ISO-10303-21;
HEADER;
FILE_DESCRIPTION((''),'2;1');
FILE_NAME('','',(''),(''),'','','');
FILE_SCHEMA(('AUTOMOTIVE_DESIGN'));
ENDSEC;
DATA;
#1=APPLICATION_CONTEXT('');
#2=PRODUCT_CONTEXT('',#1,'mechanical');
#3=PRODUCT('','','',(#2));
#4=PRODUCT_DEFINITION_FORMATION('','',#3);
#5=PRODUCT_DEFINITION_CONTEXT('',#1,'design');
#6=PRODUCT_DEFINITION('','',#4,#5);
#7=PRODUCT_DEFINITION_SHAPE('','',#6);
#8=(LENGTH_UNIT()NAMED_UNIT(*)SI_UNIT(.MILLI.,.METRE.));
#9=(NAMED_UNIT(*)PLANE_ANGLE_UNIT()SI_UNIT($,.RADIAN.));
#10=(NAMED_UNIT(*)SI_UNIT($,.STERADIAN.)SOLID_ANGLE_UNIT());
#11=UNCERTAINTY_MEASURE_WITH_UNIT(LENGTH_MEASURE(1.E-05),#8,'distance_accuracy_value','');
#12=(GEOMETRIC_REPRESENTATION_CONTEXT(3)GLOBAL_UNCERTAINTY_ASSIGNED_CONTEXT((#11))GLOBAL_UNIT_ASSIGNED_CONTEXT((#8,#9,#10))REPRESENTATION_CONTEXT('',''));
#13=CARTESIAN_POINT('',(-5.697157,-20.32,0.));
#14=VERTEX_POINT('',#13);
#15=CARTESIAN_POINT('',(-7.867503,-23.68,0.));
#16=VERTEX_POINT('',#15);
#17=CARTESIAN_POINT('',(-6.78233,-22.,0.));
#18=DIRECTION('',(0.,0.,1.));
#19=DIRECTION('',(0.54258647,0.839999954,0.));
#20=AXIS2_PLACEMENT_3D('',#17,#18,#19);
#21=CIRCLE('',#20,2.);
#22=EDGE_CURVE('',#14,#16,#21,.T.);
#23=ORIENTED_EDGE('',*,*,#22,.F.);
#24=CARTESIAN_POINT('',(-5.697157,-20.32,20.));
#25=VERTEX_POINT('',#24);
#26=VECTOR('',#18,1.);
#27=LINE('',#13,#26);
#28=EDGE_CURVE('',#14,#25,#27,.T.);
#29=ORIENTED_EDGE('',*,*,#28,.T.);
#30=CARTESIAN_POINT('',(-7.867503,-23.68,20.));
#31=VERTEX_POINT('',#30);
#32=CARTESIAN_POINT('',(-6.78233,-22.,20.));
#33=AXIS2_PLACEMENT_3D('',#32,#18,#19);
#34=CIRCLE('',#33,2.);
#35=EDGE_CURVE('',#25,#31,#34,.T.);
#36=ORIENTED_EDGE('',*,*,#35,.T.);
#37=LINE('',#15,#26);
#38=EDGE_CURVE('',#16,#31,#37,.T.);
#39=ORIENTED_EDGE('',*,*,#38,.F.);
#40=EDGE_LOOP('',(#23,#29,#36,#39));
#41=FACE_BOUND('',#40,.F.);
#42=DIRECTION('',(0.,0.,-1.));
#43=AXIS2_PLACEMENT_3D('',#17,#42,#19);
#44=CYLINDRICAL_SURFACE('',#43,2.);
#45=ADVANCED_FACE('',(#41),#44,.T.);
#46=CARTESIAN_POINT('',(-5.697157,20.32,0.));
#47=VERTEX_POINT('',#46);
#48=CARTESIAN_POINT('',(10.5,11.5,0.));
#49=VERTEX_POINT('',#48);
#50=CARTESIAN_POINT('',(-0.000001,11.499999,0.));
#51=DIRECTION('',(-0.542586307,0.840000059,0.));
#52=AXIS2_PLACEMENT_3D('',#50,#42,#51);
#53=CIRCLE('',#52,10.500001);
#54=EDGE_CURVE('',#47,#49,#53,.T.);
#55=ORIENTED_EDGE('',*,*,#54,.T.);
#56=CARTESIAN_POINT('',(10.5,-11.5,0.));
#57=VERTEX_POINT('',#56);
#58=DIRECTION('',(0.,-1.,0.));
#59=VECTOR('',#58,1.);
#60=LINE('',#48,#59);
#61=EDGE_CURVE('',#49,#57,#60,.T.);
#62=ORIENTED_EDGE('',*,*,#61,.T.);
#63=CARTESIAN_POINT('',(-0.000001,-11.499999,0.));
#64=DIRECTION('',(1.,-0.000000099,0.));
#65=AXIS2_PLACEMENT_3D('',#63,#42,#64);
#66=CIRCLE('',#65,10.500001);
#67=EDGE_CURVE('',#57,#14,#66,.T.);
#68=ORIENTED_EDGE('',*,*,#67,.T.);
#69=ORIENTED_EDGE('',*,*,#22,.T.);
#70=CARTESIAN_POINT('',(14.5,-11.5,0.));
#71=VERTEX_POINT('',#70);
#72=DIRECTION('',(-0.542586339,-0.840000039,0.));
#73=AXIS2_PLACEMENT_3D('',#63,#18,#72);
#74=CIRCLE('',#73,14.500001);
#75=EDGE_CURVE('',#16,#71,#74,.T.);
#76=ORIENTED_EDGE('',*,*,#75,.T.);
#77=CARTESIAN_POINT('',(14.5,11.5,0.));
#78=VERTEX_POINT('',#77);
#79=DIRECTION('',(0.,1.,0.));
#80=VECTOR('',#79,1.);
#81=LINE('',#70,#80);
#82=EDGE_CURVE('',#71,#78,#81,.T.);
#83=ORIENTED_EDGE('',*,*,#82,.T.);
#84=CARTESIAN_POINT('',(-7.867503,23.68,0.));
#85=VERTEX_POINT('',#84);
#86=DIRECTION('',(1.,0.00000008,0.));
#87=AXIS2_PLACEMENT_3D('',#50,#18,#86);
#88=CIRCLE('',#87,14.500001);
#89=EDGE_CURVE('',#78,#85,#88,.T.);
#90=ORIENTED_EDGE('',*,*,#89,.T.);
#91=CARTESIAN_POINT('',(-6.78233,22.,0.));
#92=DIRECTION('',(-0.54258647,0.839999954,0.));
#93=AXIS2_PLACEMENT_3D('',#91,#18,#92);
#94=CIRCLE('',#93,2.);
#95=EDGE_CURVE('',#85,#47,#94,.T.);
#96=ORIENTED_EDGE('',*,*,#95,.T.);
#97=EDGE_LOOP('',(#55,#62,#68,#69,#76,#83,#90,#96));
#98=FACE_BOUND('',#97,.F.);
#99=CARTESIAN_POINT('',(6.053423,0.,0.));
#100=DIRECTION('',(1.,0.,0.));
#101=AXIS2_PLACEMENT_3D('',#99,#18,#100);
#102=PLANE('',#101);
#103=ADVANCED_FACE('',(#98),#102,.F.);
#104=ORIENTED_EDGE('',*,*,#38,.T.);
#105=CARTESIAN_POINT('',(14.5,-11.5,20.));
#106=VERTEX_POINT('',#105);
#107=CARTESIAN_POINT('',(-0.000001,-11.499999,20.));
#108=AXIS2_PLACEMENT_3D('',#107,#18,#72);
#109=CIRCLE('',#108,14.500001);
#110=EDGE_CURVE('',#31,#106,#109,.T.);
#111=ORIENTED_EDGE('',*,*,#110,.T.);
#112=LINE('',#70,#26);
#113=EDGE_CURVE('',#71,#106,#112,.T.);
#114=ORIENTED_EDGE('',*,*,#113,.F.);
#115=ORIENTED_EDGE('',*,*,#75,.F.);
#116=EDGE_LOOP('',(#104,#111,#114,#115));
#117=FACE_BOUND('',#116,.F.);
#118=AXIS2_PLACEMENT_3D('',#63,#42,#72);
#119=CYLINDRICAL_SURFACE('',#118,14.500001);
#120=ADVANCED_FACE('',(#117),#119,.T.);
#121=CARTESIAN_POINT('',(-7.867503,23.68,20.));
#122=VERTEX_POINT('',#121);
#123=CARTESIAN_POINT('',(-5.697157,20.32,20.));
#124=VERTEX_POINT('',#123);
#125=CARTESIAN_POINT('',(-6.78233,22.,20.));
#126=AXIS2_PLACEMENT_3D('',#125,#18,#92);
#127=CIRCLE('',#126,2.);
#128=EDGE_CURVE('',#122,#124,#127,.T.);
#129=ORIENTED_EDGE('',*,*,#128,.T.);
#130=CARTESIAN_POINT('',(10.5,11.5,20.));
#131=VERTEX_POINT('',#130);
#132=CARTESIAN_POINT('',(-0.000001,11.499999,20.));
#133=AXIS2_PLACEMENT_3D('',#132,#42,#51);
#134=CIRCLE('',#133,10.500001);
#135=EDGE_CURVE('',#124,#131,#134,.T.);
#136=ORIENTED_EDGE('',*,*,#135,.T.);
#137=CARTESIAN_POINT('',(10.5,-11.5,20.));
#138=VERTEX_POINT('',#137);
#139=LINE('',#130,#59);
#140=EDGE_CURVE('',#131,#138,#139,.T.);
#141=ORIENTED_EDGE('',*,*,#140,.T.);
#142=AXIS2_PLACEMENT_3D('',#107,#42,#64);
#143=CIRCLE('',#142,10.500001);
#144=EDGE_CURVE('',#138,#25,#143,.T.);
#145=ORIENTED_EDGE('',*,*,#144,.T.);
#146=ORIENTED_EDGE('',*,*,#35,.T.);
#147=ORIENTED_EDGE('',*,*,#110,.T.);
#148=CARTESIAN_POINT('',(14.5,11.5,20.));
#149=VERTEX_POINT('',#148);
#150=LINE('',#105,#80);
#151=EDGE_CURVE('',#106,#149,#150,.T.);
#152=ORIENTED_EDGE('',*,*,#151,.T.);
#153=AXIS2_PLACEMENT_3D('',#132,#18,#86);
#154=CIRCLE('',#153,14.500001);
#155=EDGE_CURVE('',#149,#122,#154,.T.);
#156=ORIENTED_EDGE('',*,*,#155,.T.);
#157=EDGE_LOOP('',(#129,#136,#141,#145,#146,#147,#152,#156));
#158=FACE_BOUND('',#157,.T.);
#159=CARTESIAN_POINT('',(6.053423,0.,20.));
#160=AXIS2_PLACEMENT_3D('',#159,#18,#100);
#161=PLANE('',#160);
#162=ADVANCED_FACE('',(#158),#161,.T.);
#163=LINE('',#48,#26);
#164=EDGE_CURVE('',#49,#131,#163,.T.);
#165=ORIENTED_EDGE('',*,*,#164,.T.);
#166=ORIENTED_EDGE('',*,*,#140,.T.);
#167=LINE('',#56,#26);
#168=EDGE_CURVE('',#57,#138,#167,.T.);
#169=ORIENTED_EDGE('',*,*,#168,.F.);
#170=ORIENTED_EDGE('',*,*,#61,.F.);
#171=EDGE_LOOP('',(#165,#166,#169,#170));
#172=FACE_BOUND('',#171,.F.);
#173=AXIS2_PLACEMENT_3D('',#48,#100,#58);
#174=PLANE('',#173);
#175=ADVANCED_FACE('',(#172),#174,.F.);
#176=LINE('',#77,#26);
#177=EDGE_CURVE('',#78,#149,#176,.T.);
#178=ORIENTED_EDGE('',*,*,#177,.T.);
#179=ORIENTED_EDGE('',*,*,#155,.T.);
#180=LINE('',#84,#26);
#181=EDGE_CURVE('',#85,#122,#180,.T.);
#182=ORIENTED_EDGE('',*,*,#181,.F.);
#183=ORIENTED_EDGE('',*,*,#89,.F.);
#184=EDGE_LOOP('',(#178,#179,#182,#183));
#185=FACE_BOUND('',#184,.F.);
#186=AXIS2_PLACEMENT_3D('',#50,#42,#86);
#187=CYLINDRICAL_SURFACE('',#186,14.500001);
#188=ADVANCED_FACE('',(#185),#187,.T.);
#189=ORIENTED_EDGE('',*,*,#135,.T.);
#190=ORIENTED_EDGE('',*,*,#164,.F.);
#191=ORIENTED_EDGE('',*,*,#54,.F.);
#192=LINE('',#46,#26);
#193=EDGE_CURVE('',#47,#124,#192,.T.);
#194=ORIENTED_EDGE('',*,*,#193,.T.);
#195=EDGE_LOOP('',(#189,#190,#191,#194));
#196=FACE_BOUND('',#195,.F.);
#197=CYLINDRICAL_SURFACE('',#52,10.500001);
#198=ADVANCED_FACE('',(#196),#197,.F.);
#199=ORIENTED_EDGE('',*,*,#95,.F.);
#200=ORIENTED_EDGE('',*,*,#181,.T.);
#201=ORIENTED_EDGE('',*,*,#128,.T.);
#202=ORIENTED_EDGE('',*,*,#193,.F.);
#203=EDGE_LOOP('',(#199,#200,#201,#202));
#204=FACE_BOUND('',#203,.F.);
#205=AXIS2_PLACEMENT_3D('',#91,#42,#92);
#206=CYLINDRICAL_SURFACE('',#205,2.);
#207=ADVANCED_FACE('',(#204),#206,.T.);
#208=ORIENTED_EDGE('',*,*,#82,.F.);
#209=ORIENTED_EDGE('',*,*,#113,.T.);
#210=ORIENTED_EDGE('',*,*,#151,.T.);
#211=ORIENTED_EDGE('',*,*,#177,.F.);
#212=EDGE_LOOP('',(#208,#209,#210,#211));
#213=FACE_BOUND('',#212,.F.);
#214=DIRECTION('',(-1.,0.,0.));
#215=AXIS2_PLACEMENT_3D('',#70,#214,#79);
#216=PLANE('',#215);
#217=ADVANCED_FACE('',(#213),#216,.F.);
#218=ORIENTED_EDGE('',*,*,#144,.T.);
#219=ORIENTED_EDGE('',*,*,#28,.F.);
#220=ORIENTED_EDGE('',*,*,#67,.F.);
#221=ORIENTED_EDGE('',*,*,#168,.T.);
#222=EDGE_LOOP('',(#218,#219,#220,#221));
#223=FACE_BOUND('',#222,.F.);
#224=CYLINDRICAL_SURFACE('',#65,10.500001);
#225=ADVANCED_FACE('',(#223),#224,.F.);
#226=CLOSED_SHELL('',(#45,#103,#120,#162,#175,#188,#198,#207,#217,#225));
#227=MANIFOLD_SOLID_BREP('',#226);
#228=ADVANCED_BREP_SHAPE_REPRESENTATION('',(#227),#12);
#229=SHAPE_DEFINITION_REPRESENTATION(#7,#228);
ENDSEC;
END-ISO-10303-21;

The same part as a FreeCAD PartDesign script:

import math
import FreeCAD as App
import Part
import Sketcher
from FreeCAD import Vector
Q = App.Units.Quantity

doc = App.newDocument("Part")
body = doc.addObject("PartDesign::Body", "Body")

# Sketch on XY plane
sketch1 = doc.addObject("Sketcher::SketchObject", "Sketch")
body.addObject(sketch1)
sketch1.AttachmentSupport = (doc.XY_Plane, [""])
sketch1.MapMode = "FlatFace"
sketch1.addGeometry(Part.ArcOfCircle(Part.Circle(Vector(-0.000001, 11.499999, 0), Vector(0, 0, 1), 10.500001), math.radians(0.000006), math.radians(122.859874)), False)
sketch1.addGeometry(Part.LineSegment(Vector(10.5, 11.5, 0), Vector(10.5, -11.5, 0)), False)
sketch1.addGeometry(Part.ArcOfCircle(Part.Circle(Vector(-0.000001, -11.499999, 0), Vector(0, 0, 1), 10.500001), math.radians(-122.859874), math.radians(-0.000006)), False)
sketch1.addGeometry(Part.ArcOfCircle(Part.Circle(Vector(-6.78233, -22, 0), Vector(0, 0, 1), 2), math.radians(57.140115), math.radians(237.140115)), False)
sketch1.addGeometry(Part.ArcOfCircle(Part.Circle(Vector(-0.000001, -11.499999, 0), Vector(0, 0, 1), 14.500001), math.radians(-122.859876), math.radians(-0.000005)), False)
sketch1.addGeometry(Part.LineSegment(Vector(14.5, -11.5, 0), Vector(14.5, 11.5, 0)), False)
sketch1.addGeometry(Part.ArcOfCircle(Part.Circle(Vector(-0.000001, 11.499999, 0), Vector(0, 0, 1), 14.500001), math.radians(0.000005), math.radians(122.859876)), False)
sketch1.addGeometry(Part.ArcOfCircle(Part.Circle(Vector(-6.78233, 22, 0), Vector(0, 0, 1), 2), math.radians(122.859885), math.radians(302.859885)), False)
sketch1.addConstraint(Sketcher.Constraint("Tangent", 0, 1, 1, 1))
sketch1.addConstraint(Sketcher.Constraint("Tangent", 1, 2, 2, 2))
sketch1.addConstraint(Sketcher.Constraint("Tangent", 2, 1, 3, 1))
sketch1.addConstraint(Sketcher.Constraint("Tangent", 3, 2, 4, 1))
sketch1.addConstraint(Sketcher.Constraint("Tangent", 4, 2, 5, 1))
sketch1.addConstraint(Sketcher.Constraint("Tangent", 5, 2, 6, 1))
sketch1.addConstraint(Sketcher.Constraint("Tangent", 6, 2, 7, 1))
sketch1.addConstraint(Sketcher.Constraint("Tangent", 7, 2, 0, 2))
sketch1.addConstraint(Sketcher.Constraint("Vertical", 1))
sketch1.addConstraint(Sketcher.Constraint("Vertical", 5))
sketch1.addConstraint(Sketcher.Constraint("Coincident", 4, 3, 2, 3))
sketch1.addConstraint(Sketcher.Constraint("Coincident", 6, 3, 0, 3))
sketch1.addConstraint(Sketcher.Constraint("Equal", 0, 2))
sketch1.addConstraint(Sketcher.Constraint("Symmetric", 0, 3, 2, 3, -1, 1))
sketch1.addConstraint(Sketcher.Constraint("Vertical", 3, 3, 7, 3))
sketch1.addConstraint(Sketcher.Constraint("Radius", 3, Q("2 mm")))
sketch1.addConstraint(Sketcher.Constraint("Radius", 0, Q("10.500001 mm")))
sketch1.addConstraint(Sketcher.Constraint("DistanceY", 1, 2, 1, 1, Q("23 mm")))
sketch1.addConstraint(Sketcher.Constraint("DistanceY", 3, 3, -1, 1, Q("22 mm")))
pad1 = doc.addObject("PartDesign::Pad", "Pad")
body.addObject(pad1)
pad1.Profile = sketch1
pad1.Length = 20

doc.recompute()
